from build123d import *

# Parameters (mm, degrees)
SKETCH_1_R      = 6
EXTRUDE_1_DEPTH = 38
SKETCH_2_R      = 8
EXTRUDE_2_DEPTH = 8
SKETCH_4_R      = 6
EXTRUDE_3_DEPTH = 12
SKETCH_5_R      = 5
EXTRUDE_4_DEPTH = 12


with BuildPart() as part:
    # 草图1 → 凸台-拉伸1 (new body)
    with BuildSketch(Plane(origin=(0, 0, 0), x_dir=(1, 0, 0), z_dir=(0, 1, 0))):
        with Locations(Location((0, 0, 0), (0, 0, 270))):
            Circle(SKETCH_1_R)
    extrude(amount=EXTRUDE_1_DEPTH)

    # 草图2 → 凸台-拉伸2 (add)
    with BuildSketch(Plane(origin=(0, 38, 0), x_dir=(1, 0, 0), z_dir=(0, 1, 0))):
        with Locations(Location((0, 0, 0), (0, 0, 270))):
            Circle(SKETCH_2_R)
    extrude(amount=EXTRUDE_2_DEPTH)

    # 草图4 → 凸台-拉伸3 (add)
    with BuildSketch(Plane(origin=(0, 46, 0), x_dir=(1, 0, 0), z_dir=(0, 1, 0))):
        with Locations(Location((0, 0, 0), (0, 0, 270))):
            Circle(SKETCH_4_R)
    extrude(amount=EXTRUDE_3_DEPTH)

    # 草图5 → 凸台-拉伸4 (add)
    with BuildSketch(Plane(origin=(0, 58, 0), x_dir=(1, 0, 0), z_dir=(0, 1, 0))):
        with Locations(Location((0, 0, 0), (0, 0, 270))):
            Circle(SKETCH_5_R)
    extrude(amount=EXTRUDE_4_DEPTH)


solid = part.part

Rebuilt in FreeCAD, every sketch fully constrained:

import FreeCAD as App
import Part
import Sketcher
from FreeCAD import Vector
Q = App.Units.Quantity

doc = App.newDocument("Part")
params = doc.addObject("Spreadsheet::Sheet", "Params")
for row, (alias, value) in enumerate([
    ("sketch1_diameter", "12 mm"),
    ("pad1_length", "38 mm"),
    ("sketch2_diameter", "16 mm"),
    ("pad2_length", "8 mm"),
    ("sketch3_diameter", "12 mm"),
    ("pad3_length", "12 mm"),
    ("sketch4_diameter", "10 mm"),
    ("pad4_length", "12 mm"),
], start=1):
    params.set(f"A{row}", alias)
    params.set(f"B{row}", "=" + value)
    params.setAlias(f"B{row}", alias)

body = doc.addObject("PartDesign::Body", "Body")

sketch1 = body.newObject("Sketcher::SketchObject", "Sketch")
sketch1.AttachmentSupport = (doc.getObject("XZ_Plane"), [""])
sketch1.MapMode = "FlatFace"
sketch1.addGeometry(Part.Circle(Vector(0, 0, 0), Vector(0, 0, 1), 6), False)
sketch1.addConstraint([
    Sketcher.Constraint("Coincident", 0, 3, -1, 1),
    Sketcher.Constraint("Diameter", 0, Q("12 mm")),
])
sketch1.setExpression("Constraints[1]", "Params.sketch1_diameter")
pad1 = body.newObject("PartDesign::Pad", "Pad")
pad1.Profile = sketch1
pad1.setExpression("Length", "Params.pad1_length")
pad1.Reversed = True

sketch2 = body.newObject("Sketcher::SketchObject", "Sketch001")
sketch2.AttachmentSupport = (doc.getObject("XZ_Plane"), [""])
sketch2.MapMode = "FlatFace"
sketch2.AttachmentOffset = App.Placement(Vector(0, 0, -38), App.Rotation())
sketch2.addGeometry(Part.Circle(Vector(0, 0, 0), Vector(0, 0, 1), 8), False)
sketch2.addConstraint([
    Sketcher.Constraint("Coincident", 0, 3, -1, 1),
    Sketcher.Constraint("Diameter", 0, Q("16 mm")),
])
sketch2.setExpression("Constraints[1]", "Params.sketch2_diameter")
pad2 = body.newObject("PartDesign::Pad", "Pad001")
pad2.Profile = sketch2
pad2.setExpression("Length", "Params.pad2_length")
pad2.Reversed = True

sketch3 = body.newObject("Sketcher::SketchObject", "Sketch002")
sketch3.AttachmentSupport = (doc.getObject("XZ_Plane"), [""])
sketch3.MapMode = "FlatFace"
sketch3.AttachmentOffset = App.Placement(Vector(0, 0, -46), App.Rotation())
sketch3.addGeometry(Part.Circle(Vector(0, 0, 0), Vector(0, 0, 1), 6), False)
sketch3.addConstraint([
    Sketcher.Constraint("Coincident", 0, 3, -1, 1),
    Sketcher.Constraint("Diameter", 0, Q("12 mm")),
])
sketch3.setExpression("Constraints[1]", "Params.sketch3_diameter")
pad3 = body.newObject("PartDesign::Pad", "Pad002")
pad3.Profile = sketch3
pad3.setExpression("Length", "Params.pad3_length")
pad3.Reversed = True

sketch4 = body.newObject("Sketcher::SketchObject", "Sketch003")
sketch4.AttachmentSupport = (doc.getObject("XZ_Plane"), [""])
sketch4.MapMode = "FlatFace"
sketch4.AttachmentOffset = App.Placement(Vector(0, 0, -58), App.Rotation())
sketch4.addGeometry(Part.Circle(Vector(0, 0, 0), Vector(0, 0, 1), 5), False)
sketch4.addConstraint([
    Sketcher.Constraint("Coincident", 0, 3, -1, 1),
    Sketcher.Constraint("Diameter", 0, Q("10 mm")),
])
sketch4.setExpression("Constraints[1]", "Params.sketch4_diameter")
pad4 = body.newObject("PartDesign::Pad", "Pad003")
pad4.Profile = sketch4
pad4.setExpression("Length", "Params.pad4_length")
pad4.Reversed = True

doc.recompute()
